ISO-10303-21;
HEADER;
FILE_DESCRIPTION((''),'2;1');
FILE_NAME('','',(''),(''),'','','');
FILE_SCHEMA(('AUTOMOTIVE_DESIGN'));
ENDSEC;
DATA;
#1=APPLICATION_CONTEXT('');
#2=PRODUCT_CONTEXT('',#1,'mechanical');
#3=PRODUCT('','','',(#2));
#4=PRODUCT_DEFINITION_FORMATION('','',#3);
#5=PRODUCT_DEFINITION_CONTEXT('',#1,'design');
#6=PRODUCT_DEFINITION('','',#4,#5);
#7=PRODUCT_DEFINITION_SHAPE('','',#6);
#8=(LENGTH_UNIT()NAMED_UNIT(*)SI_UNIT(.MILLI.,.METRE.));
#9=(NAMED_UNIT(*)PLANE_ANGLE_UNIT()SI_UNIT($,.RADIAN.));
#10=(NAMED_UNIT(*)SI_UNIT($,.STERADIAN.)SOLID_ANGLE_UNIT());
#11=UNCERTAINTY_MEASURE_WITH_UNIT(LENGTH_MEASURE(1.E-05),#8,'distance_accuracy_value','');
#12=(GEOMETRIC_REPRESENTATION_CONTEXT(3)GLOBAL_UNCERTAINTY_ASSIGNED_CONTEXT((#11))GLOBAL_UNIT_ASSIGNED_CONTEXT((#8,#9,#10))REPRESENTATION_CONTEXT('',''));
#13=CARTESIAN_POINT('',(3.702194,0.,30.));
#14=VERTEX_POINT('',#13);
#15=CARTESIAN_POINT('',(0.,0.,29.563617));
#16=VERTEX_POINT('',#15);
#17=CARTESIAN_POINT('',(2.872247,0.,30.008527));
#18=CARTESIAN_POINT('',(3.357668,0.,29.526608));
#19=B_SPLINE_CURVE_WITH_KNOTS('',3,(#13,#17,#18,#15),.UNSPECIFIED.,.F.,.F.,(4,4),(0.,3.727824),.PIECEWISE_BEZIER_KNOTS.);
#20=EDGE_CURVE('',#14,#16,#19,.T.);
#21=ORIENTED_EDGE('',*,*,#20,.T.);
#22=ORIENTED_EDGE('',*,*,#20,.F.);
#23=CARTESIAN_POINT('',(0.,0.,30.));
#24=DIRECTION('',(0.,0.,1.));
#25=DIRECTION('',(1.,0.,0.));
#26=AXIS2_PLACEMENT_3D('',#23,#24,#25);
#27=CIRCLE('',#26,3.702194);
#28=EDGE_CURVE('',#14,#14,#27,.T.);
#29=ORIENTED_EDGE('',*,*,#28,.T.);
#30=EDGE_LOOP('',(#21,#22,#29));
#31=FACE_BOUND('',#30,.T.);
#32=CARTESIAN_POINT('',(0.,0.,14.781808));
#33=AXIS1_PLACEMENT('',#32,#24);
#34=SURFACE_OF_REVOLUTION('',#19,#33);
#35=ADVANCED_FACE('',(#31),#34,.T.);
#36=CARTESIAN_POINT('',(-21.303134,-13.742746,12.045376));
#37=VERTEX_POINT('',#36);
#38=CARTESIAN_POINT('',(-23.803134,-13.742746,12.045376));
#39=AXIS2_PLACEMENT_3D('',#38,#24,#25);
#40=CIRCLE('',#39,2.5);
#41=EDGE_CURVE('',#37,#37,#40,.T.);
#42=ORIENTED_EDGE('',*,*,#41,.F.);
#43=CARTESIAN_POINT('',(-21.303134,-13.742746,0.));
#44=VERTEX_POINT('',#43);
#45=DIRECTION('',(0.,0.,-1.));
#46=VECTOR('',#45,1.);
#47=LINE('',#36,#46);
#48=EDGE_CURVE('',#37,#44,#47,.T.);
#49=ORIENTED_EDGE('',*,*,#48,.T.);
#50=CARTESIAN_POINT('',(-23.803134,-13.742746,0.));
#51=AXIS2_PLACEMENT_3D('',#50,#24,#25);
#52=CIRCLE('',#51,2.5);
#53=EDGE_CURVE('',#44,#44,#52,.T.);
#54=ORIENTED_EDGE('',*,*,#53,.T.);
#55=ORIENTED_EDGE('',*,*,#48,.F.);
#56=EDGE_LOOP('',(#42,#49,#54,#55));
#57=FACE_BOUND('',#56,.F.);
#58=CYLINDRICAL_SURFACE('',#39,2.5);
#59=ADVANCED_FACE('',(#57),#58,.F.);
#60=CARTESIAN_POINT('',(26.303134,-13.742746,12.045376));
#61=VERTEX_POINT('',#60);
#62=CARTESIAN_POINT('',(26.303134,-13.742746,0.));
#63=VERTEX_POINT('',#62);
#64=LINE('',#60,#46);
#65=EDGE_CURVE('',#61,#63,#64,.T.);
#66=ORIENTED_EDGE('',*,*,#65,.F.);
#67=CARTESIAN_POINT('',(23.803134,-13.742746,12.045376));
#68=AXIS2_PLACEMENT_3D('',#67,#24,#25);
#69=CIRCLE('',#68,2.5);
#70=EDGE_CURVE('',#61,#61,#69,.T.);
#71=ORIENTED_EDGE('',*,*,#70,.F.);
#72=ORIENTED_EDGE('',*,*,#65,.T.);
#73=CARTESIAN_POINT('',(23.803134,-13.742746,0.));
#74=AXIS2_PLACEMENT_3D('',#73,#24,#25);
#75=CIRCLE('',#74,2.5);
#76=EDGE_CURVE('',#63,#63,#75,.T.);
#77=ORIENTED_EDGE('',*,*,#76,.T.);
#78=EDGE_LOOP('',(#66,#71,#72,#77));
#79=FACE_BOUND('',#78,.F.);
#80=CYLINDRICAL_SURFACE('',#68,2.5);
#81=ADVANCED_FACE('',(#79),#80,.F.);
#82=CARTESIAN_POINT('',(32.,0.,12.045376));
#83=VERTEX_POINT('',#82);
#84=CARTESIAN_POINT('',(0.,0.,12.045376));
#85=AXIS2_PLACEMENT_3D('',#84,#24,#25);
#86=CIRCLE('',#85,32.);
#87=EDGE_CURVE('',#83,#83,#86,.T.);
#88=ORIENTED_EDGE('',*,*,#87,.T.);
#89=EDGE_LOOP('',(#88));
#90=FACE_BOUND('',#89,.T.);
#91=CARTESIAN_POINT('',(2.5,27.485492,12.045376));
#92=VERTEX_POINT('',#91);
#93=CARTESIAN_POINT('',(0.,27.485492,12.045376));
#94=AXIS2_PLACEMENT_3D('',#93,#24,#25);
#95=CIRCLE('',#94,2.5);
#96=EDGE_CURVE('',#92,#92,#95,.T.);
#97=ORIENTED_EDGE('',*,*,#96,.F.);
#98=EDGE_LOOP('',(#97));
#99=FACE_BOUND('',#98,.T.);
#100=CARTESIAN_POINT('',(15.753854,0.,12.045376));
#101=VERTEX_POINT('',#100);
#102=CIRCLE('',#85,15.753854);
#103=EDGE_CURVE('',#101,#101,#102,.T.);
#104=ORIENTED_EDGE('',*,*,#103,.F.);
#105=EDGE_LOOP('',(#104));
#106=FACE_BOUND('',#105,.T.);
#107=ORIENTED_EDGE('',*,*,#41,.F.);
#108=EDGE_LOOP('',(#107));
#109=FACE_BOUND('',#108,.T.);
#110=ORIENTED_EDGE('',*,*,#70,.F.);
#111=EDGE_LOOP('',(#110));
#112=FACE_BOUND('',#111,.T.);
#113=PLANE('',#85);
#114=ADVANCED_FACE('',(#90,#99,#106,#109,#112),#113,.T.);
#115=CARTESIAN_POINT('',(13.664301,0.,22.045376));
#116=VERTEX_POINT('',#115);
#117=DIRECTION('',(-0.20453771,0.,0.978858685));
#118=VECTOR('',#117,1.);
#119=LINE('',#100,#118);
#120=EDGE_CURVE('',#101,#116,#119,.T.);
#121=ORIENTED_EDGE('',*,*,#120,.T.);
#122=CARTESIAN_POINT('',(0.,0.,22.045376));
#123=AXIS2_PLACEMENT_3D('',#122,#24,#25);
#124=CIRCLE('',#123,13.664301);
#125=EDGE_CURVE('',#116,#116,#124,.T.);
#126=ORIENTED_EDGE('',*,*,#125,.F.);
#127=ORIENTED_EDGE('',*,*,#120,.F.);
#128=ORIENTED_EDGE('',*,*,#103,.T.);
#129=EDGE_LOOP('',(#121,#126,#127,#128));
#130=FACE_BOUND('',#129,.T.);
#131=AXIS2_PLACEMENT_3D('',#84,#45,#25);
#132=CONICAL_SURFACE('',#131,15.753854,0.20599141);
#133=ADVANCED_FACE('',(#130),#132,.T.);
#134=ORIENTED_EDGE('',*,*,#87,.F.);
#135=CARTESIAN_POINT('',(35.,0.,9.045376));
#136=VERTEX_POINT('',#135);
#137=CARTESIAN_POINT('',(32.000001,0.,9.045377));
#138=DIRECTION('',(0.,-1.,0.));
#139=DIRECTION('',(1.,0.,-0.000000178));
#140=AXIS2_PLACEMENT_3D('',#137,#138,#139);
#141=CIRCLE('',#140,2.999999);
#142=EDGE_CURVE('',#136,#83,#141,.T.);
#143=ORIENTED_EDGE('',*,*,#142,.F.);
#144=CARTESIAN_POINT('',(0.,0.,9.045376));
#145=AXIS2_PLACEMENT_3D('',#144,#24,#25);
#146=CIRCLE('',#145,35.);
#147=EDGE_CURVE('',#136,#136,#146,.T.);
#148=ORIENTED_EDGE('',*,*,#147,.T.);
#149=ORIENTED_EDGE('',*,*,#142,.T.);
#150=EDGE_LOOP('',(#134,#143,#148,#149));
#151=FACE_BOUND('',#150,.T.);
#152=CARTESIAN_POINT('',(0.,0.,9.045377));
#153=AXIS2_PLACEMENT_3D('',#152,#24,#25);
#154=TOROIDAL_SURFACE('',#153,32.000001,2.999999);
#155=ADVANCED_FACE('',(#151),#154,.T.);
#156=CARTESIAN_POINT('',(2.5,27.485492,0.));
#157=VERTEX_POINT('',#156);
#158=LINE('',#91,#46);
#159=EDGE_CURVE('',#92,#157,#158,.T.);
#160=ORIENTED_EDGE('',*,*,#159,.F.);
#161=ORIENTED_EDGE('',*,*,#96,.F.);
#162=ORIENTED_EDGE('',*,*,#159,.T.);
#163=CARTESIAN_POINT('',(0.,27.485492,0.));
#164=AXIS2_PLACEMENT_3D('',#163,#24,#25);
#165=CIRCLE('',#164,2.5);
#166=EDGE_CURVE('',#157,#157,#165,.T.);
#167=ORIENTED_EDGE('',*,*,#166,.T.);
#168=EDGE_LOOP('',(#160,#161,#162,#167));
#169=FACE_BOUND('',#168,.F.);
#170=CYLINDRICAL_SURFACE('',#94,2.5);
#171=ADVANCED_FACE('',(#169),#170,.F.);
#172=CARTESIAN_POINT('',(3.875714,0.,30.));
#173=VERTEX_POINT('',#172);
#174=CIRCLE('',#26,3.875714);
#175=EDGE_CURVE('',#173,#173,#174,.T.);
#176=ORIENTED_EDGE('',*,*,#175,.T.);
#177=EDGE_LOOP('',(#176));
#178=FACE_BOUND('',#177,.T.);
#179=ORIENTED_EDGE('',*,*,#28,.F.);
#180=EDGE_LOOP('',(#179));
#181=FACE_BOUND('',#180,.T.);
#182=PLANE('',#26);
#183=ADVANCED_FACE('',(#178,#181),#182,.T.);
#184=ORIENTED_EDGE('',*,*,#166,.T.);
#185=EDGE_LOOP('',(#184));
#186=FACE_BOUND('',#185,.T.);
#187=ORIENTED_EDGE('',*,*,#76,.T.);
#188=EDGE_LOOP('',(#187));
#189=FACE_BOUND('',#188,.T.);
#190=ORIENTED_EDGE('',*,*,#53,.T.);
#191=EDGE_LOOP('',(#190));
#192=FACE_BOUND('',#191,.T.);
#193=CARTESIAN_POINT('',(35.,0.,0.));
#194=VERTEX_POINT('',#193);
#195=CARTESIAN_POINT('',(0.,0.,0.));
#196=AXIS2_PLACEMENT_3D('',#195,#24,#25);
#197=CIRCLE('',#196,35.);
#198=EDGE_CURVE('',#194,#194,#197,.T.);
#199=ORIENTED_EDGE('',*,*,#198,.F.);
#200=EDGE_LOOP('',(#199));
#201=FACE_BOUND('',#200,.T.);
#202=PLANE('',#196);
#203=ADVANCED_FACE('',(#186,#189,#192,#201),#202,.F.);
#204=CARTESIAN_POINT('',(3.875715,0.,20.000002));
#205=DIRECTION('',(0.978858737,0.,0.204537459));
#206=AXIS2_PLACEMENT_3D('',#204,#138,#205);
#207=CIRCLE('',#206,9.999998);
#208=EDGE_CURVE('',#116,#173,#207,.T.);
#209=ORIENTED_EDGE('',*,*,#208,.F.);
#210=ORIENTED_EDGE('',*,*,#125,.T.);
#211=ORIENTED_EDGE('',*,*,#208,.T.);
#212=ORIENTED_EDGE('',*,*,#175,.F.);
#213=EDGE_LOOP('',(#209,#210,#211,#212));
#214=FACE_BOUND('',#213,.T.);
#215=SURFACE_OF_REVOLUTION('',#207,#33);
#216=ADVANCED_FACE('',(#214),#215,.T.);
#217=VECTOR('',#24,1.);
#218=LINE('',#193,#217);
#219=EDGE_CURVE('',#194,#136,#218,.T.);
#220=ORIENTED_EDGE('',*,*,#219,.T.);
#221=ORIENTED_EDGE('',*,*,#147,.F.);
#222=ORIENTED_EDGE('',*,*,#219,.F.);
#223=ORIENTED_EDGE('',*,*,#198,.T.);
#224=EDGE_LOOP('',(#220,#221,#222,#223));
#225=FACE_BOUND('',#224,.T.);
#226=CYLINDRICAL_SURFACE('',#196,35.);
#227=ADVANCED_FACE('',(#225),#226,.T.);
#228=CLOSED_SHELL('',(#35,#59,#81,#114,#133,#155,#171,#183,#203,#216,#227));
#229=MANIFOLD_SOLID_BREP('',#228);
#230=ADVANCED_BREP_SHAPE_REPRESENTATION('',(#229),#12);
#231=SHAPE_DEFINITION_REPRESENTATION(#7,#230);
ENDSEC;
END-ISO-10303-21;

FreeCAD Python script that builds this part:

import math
import FreeCAD as App
import Part
import Sketcher

V = App.Vector
Q = App.Units.Quantity

doc = App.newDocument("Part")
body = doc.addObject("PartDesign::Body", "Body")

# Sketch on XZ plane
sketch1 = body.newObject("Sketcher::SketchObject", "Sketch")
sketch1.AttachmentSupport = (doc.getObject("XZ_Plane"), [""])
sketch1.MapMode = "FlatFace"
sketch1.addGeometry(Part.LineSegment(V(0, 29.563617, 0), V(0, 0, 0)), False)
sketch1.addGeometry(Part.LineSegment(V(0, 0, 0), V(35, 0, 0)), False)
sketch1.addGeometry(Part.LineSegment(V(35, 0, 0), V(35, 9.045376, 0)), False)
sketch1.addGeometry(Part.ArcOfCircle(Part.Circle(V(32.000001, 9.045377, 0), V(0, 0, 1), 2.999999), math.radians(-0.00001), math.radians(90.00001)), False)
sketch1.addGeometry(Part.LineSegment(V(32, 12.045376, 0), V(15.753854, 12.045376, 0)), False)
sketch1.addGeometry(Part.LineSegment(V(15.753854, 12.045376, 0), V(13.664301, 22.045376, 0)), False)
sketch1.addGeometry(Part.ArcOfCircle(Part.Circle(V(3.875715, 20.000002, 0), V(0, 0, 1), 9.999998), math.radians(11.802424), math.radians(90.000008)), False)
sketch1.addGeometry(Part.LineSegment(V(3.875714, 30, 0), V(3.702194, 30, 0)), False)
sketch1.addGeometry(Part.BSplineCurve([V(3.702194, 30, 0), V(2.872247, 30.008527, 0), V(3.357668, 29.526608, 0), V(0, 29.563617, 0)], [4, 4], [0, 3.727824], False, 3, [1, 1, 1, 1], False), False)
sketch1.addConstraint(Sketcher.Constraint("Block", 8))
sketch1.addConstraint(Sketcher.Constraint("Coincident", 0, 2, 1, 1))
sketch1.addConstraint(Sketcher.Constraint("Coincident", 1, 2, 2, 1))
sketch1.addConstraint(Sketcher.Constraint("Tangent", 2, 2, 3, 1))
sketch1.addConstraint(Sketcher.Constraint("Tangent", 3, 2, 4, 1))
sketch1.addConstraint(Sketcher.Constraint("Coincident", 4, 2, 5, 1))
sketch1.addConstraint(Sketcher.Constraint("Tangent", 5, 2, 6, 1))
sketch1.addConstraint(Sketcher.Constraint("Tangent", 6, 2, 7, 1))
sketch1.addConstraint(Sketcher.Constraint("Coincident", 7, 2, 8, 1))
sketch1.addConstraint(Sketcher.Constraint("Coincident", 8, 2, 0, 1))
sketch1.addConstraint(Sketcher.Constraint("Vertical", 0))
sketch1.addConstraint(Sketcher.Constraint("Horizontal", 1))
sketch1.addConstraint(Sketcher.Constraint("Vertical", 2))
sketch1.addConstraint(Sketcher.Constraint("Horizontal", 4))
sketch1.addConstraint(Sketcher.Constraint("Horizontal", 7))
sketch1.addConstraint(Sketcher.Constraint("PointOnObject", 1, 2, -1))
sketch1.addConstraint(Sketcher.Constraint("Radius", 3, Q("2.999999 mm")))
sketch1.addConstraint(Sketcher.Constraint("Radius", 6, Q("9.999998 mm")))
sketch1.addConstraint(Sketcher.Constraint("DistanceX", 1, 1, 1, 2, Q("35 mm")))
sketch1.addConstraint(Sketcher.Constraint("DistanceY", 4, 2, 5, 2, Q("10 mm")))
sketch1.addConstraint(Sketcher.Constraint("DistanceX", 7, 2, 7, 1, Q("0.17352 mm")))
sketch1.addConstraint(Sketcher.Constraint("DistanceX", -1, 1, 5, 2, Q("13.664301 mm")))
revolution = body.newObject("PartDesign::Revolution", "Revolution")
revolution.Profile = sketch1
revolution.ReferenceAxis = (sketch1, ["V_Axis"])
revolution.Angle = 360

# Sketch on XY plane
sketch2 = body.newObject("Sketcher::SketchObject", "Sketch001")
sketch2.AttachmentSupport = (doc.getObject("XY_Plane"), [""])
sketch2.MapMode = "FlatFace"
sketch2.AttachmentOffset = App.Placement(V(0, 0, 12.045376), App.Rotation())
sketch2.addGeometry(Part.Circle(V(0, 27.5, 0), V(0, 0, 1), 2.5), False)
sketch2.addGeometry(Part.Circle(V(23.8, -13.7, 0), V(0, 0, 1), 2.5), False)
sketch2.addGeometry(Part.Circle(V(-23.8, -13.7, 0), V(0, 0, 1), 2.5), False)
sketch2.addConstraint(Sketcher.Constraint("Equal", 0, 1))
sketch2.addConstraint(Sketcher.Constraint("Equal", 1, 2))
sketch2.addConstraint(Sketcher.Constraint("Symmetric", 1, 3, 2, 3, -2))
sketch2.addConstraint(Sketcher.Constraint("PointOnObject", 0, 3, -2))
sketch2.addConstraint(Sketcher.Constraint("Diameter", 0, Q("5 mm")))
sketch2.addConstraint(Sketcher.Constraint("DistanceY", 1, 3, 0, 3, Q("41.228238 mm")))
sketch2.addConstraint(Sketcher.Constraint("DistanceY", -1, 1, 0, 3, Q("27.485492 mm")))
sketch2.addConstraint(Sketcher.Constraint("DistanceX", -1, 1, 1, 3, Q("23.803134 mm")))
pocket1 = body.newObject("PartDesign::Pocket", "Pocket")
pocket1.Profile = sketch2
pocket1.Length = 25

# Sketch on XY plane
sketch3 = body.newObject("Sketcher::SketchObject", "Sketch002")
sketch3.AttachmentSupport = (doc.getObject("XY_Plane"), [""])
sketch3.MapMode = "FlatFace"
sketch3.addGeometry(Part.Circle(V(0, 0, 0), V(0, 0, 1), 5), False)
sketch3.addConstraint(Sketcher.Constraint("Coincident", 0, 3, -1, 1))
sketch3.addConstraint(Sketcher.Constraint("Diameter", 0, Q("10 mm")))
pad1 = body.newObject("PartDesign::Pad", "Pad")
pad1.Profile = sketch3
pad1.Length = 29

doc.recompute()
